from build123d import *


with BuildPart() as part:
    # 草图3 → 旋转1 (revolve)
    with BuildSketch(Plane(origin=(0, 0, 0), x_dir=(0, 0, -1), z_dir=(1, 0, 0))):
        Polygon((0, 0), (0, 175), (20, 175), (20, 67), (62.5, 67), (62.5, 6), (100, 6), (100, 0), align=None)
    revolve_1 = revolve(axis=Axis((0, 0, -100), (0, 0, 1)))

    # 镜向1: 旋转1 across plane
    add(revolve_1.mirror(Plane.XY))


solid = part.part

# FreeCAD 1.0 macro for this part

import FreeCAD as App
import Part
import Sketcher
Q = App.Units.Quantity

doc = App.newDocument("Part")
params = doc.addObject("Spreadsheet::Sheet", "Params")
for row, (alias, value) in enumerate([
    ("sketch1_width", "175 mm"),
    ("sketch1_width2", "6 mm"),
    ("sketch1_width3", "61 mm"),
    ("sketch1_height", "100 mm"),
    ("sketch1_height2", "20 mm"),
    ("revolution_angle", "360 deg"),
], start=1):
    params.set(f"A{row}", alias)
    params.set(f"B{row}", "=" + value)
    params.setAlias(f"B{row}", alias)

body = doc.addObject("PartDesign::Body", "Body")

# Sketch on YZ plane
sketch1 = body.newObject("Sketcher::SketchObject", "Sketch")
sketch1.AttachmentSupport = (doc.getObject("YZ_Plane"), [""])
sketch1.MapMode = "FlatFace"
sketch1.addGeometry(Part.LineSegment(App.Vector(175, 0, 0), App.Vector(0, 0, 0)), False)
sketch1.addGeometry(Part.LineSegment(App.Vector(0, 0, 0), App.Vector(0, -100, 0)), False)
sketch1.addGeometry(Part.LineSegment(App.Vector(0, -100, 0), App.Vector(6, -100, 0)), False)
sketch1.addGeometry(Part.LineSegment(App.Vector(6, -100, 0), App.Vector(6, -62, 0)), False)
sketch1.addGeometry(Part.LineSegment(App.Vector(6, -62, 0), App.Vector(67, -62, 0)), False)
sketch1.addGeometry(Part.LineSegment(App.Vector(67, -62, 0), App.Vector(67, -20, 0)), False)
sketch1.addGeometry(Part.LineSegment(App.Vector(67, -20, 0), App.Vector(175, -20, 0)), False)
sketch1.addGeometry(Part.LineSegment(App.Vector(175, -20, 0), App.Vector(175, 0, 0)), False)
sketch1.addConstraint(Sketcher.Constraint("Coincident", 0, 2, 1, 1))
sketch1.addConstraint(Sketcher.Constraint("Coincident", 1, 2, 2, 1))
sketch1.addConstraint(Sketcher.Constraint("Coincident", 2, 2, 3, 1))
sketch1.addConstraint(Sketcher.Constraint("Coincident", 3, 2, 4, 1))
sketch1.addConstraint(Sketcher.Constraint("Coincident", 4, 2, 5, 1))
sketch1.addConstraint(Sketcher.Constraint("Coincident", 5, 2, 6, 1))
sketch1.addConstraint(Sketcher.Constraint("Coincident", 6, 2, 7, 1))
sketch1.addConstraint(Sketcher.Constraint("Coincident", 7, 2, 0, 1))
sketch1.addConstraint(Sketcher.Constraint("Horizontal", 0))
sketch1.addConstraint(Sketcher.Constraint("Vertical", 1))
sketch1.addConstraint(Sketcher.Constraint("Horizontal", 2))
sketch1.addConstraint(Sketcher.Constraint("Vertical", 3))
sketch1.addConstraint(Sketcher.Constraint("Horizontal", 4))
sketch1.addConstraint(Sketcher.Constraint("Vertical", 5))
sketch1.addConstraint(Sketcher.Constraint("Horizontal", 6))
sketch1.addConstraint(Sketcher.Constraint("Vertical", 7))
sketch1.addConstraint(Sketcher.Constraint("Coincident", 0, 2, -1, 1))
sketch1.addConstraint(Sketcher.Constraint("DistanceX", 0, 2, 0, 1, Q("175 mm")))
sketch1.addConstraint(Sketcher.Constraint("DistanceX", 2, 1, 2, 2, Q("6 mm")))
sketch1.addConstraint(Sketcher.Constraint("DistanceX", 4, 1, 4, 2, Q("61 mm")))
sketch1.addConstraint(Sketcher.Constraint("DistanceY", 1, 2, 1, 1, Q("100 mm")))
sketch1.addConstraint(Sketcher.Constraint("DistanceY", 7, 1, 7, 2, Q("20 mm")))
sketch1.addConstraint(Sketcher.Constraint("DistanceY", 3, 1, 3, 2, Q("37.5 mm")))
sketch1.setExpression("Constraints[17]", "Params.sketch1_width")
sketch1.setExpression("Constraints[18]", "Params.sketch1_width2")
sketch1.setExpression("Constraints[19]", "Params.sketch1_width3")
sketch1.setExpression("Constraints[20]", "Params.sketch1_height")
sketch1.setExpression("Constraints[21]", "Params.sketch1_height2")
revolution = body.newObject("PartDesign::Revolution", "Revolution")
revolution.Profile = sketch1
revolution.ReferenceAxis = (sketch1, ["V_Axis"])
revolution.setExpression("Angle", "Params.revolution_angle")
doc.recompute()

mirrored = body.newObject("PartDesign::Mirrored", "Mirrored")
mirrored.Originals = [revolution]
mirrored.MirrorPlane = (doc.getObject("XY_Plane"), [""])
body.Tip = mirrored

doc.recompute()
